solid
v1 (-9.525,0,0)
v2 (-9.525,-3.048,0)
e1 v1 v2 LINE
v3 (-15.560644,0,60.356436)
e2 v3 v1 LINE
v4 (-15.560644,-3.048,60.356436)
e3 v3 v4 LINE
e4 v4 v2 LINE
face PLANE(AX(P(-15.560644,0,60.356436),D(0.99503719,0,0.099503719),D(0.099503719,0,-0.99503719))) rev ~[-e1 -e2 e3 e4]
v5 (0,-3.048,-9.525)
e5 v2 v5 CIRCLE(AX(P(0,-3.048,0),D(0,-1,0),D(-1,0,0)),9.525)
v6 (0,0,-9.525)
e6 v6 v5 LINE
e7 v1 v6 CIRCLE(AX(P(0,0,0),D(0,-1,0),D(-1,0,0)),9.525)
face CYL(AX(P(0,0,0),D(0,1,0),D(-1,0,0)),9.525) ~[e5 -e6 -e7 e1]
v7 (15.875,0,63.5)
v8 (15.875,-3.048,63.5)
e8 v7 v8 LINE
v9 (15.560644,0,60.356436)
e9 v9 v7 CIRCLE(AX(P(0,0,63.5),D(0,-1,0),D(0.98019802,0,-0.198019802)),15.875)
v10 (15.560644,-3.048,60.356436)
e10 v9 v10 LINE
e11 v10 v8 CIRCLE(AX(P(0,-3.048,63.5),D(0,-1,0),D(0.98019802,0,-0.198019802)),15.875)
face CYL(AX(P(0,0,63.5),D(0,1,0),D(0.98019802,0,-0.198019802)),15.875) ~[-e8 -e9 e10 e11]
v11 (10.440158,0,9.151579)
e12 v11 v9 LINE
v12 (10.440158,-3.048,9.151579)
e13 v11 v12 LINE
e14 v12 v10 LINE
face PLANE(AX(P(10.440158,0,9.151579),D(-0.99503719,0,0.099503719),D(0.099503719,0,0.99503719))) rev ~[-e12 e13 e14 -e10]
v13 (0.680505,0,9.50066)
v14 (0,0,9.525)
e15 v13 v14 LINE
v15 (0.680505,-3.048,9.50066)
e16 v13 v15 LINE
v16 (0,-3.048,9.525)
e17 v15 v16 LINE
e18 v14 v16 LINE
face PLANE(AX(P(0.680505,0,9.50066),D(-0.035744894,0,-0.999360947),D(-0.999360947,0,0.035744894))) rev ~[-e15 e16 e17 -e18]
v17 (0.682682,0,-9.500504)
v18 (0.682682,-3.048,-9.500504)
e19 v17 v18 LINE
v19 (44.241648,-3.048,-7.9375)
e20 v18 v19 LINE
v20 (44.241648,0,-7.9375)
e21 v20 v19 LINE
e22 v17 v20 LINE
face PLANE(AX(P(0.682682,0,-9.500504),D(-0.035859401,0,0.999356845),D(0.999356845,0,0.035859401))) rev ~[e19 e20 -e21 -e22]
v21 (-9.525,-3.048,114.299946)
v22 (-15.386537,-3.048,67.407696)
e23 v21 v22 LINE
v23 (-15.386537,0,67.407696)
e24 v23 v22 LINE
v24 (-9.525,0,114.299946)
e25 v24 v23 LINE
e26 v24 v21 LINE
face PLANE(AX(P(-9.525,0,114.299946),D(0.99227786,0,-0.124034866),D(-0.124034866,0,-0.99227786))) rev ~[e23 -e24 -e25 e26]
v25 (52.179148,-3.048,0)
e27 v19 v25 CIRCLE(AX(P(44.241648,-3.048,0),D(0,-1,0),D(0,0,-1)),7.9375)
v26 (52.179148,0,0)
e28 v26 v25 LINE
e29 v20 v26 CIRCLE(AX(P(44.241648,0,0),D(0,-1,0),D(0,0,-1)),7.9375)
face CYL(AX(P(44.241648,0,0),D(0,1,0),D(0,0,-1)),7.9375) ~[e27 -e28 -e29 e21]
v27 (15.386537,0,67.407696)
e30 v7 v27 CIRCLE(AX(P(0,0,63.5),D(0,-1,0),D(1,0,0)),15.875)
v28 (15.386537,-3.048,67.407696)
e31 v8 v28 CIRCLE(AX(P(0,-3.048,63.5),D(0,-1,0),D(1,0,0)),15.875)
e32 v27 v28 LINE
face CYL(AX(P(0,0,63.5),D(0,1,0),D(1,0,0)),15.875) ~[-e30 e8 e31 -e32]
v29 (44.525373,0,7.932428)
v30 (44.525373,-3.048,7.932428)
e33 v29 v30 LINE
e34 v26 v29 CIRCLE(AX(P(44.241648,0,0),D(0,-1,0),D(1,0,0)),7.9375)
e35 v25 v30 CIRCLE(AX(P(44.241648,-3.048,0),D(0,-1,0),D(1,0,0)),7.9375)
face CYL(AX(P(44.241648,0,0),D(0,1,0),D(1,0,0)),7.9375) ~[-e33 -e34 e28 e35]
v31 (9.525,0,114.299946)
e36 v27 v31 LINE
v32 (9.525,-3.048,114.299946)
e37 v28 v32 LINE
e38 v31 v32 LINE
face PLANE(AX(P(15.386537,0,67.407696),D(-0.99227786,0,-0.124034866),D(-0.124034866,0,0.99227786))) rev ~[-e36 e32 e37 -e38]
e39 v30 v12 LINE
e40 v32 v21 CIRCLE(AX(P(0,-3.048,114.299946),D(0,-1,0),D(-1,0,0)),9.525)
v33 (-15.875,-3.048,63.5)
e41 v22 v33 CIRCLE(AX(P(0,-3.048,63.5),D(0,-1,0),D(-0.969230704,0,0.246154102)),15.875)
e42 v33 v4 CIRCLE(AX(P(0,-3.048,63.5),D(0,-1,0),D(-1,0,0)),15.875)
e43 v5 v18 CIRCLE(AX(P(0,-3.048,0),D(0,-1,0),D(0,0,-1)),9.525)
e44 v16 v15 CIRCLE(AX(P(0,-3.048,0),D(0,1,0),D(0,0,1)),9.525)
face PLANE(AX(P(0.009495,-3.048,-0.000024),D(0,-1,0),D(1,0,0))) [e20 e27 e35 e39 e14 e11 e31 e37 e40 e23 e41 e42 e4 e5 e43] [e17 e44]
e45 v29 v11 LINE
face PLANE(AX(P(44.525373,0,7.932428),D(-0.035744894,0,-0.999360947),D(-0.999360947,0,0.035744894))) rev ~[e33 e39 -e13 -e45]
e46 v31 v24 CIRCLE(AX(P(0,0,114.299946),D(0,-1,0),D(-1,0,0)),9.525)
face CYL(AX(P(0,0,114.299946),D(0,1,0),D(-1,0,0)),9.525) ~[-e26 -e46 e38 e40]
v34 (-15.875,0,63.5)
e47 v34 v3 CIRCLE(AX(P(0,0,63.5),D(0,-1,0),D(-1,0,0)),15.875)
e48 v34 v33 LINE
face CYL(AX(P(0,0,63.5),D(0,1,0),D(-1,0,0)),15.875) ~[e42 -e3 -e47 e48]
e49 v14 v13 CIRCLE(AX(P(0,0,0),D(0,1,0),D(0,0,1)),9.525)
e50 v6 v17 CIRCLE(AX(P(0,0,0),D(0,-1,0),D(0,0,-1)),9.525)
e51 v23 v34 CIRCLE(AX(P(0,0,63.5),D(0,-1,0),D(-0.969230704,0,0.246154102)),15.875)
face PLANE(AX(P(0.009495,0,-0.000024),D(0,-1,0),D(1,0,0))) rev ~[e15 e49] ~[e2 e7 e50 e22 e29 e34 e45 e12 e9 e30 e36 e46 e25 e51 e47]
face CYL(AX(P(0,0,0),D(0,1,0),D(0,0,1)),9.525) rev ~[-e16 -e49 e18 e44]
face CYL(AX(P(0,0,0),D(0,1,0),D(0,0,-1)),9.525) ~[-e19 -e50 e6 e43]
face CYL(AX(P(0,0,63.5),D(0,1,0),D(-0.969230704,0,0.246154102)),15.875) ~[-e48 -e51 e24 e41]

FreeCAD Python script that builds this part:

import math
import FreeCAD as App
import Part
import Sketcher
Q = App.Units.Quantity

doc = App.newDocument("Part")
body = doc.addObject("PartDesign::Body", "Body")

sketch1 = doc.addObject("Sketcher::SketchObject", "Sketch")
body.addObject(sketch1)
sketch1.AttachmentSupport = (doc.XZ_Plane, [""])
sketch1.MapMode = "FlatFace"
sketch1.addGeometry(Part.LineSegment(App.Vector(10.4, 9.2, 0), App.Vector(15.6, 60.4, 0)), False)
sketch1.addGeometry(Part.ArcOfCircle(Part.Circle(App.Vector(0, 63.5, 0), App.Vector(0, 0, 1), 15.9), math.radians(-11.42), math.radians(0)), False)
sketch1.addGeometry(Part.ArcOfCircle(Part.Circle(App.Vector(0, 63.5, 0), App.Vector(0, 0, 1), 15.9), math.radians(0), math.radians(14.25)), False)
sketch1.addGeometry(Part.LineSegment(App.Vector(15.4, 67.4, 0), App.Vector(9.5, 114.3, 0)), False)
sketch1.addGeometry(Part.ArcOfCircle(Part.Circle(App.Vector(0, 114.3, 0), App.Vector(0, 0, 1), 9.5), math.radians(0), math.radians(180)), False)
sketch1.addGeometry(Part.LineSegment(App.Vector(-9.5, 114.3, 0), App.Vector(-15.4, 67.4, 0)), False)
sketch1.addGeometry(Part.ArcOfCircle(Part.Circle(App.Vector(0, 63.5, 0), App.Vector(0, 0, 1), 15.9), math.radians(165.75), math.radians(180)), False)
sketch1.addGeometry(Part.ArcOfCircle(Part.Circle(App.Vector(0, 63.5, 0), App.Vector(0, 0, 1), 15.9), math.radians(180), math.radians(191.42)), False)
sketch1.addGeometry(Part.LineSegment(App.Vector(-15.6, 60.4, 0), App.Vector(-9.5, 0, 0)), False)
sketch1.addGeometry(Part.ArcOfCircle(Part.Circle(App.Vector(0, 0, 0), App.Vector(0, 0, 1), 9.5), math.radians(180), math.radians(270)), False)
sketch1.addGeometry(Part.ArcOfCircle(Part.Circle(App.Vector(0, 0, 0), App.Vector(0, 0, 1), 9.5), math.radians(-90), math.radians(-85.89)), False)
sketch1.addGeometry(Part.LineSegment(App.Vector(0.7, -9.5, 0), App.Vector(44.2, -7.9, 0)), False)
sketch1.addGeometry(Part.ArcOfCircle(Part.Circle(App.Vector(44.2, 0, 0), App.Vector(0, 0, 1), 7.9), math.radians(-90), math.radians(0)), False)
sketch1.addGeometry(Part.ArcOfCircle(Part.Circle(App.Vector(44.2, 0, 0), App.Vector(0, 0, 1), 7.9), math.radians(0), math.radians(88)), False)
sketch1.addGeometry(Part.LineSegment(App.Vector(44.5, 7.9, 0), App.Vector(10.4, 9.2, 0)), False)
sketch1.addGeometry(Part.ArcOfCircle(Part.Circle(App.Vector(0, 0, 0), App.Vector(0, 0, 1), 9.5), math.radians(85.9), math.radians(90)), False)
sketch1.addGeometry(Part.LineSegment(App.Vector(0.7, 9.5, 0), App.Vector(0, 9.5, 0)), False)
sketch1.addConstraint(Sketcher.Constraint("Coincident", 0, 2, 1, 1))
sketch1.addConstraint(Sketcher.Constraint("Tangent", 1, 2, 2, 1))
sketch1.addConstraint(Sketcher.Constraint("Coincident", 2, 2, 3, 1))
sketch1.addConstraint(Sketcher.Constraint("Coincident", 3, 2, 4, 1))
sketch1.addConstraint(Sketcher.Constraint("Coincident", 4, 2, 5, 1))
sketch1.addConstraint(Sketcher.Constraint("Coincident", 5, 2, 6, 1))
sketch1.addConstraint(Sketcher.Constraint("Tangent", 6, 2, 7, 1))
sketch1.addConstraint(Sketcher.Constraint("Coincident", 7, 2, 8, 1))
sketch1.addConstraint(Sketcher.Constraint("Coincident", 8, 2, 9, 1))
sketch1.addConstraint(Sketcher.Constraint("Tangent", 9, 2, 10, 1))
sketch1.addConstraint(Sketcher.Constraint("Coincident", 10, 2, 11, 1))
sketch1.addConstraint(Sketcher.Constraint("Coincident", 11, 2, 12, 1))
sketch1.addConstraint(Sketcher.Constraint("Tangent", 12, 2, 13, 1))
sketch1.addConstraint(Sketcher.Constraint("Tangent", 13, 2, 14, 1))
sketch1.addConstraint(Sketcher.Constraint("Coincident", 14, 2, 0, 1))
sketch1.addConstraint(Sketcher.Constraint("Coincident", 15, 1, 16, 1))
sketch1.addConstraint(Sketcher.Constraint("Coincident", 16, 2, 15, 2))
sketch1.addConstraint(Sketcher.Constraint("Coincident", 9, 3, -1, 1))
sketch1.addConstraint(Sketcher.Constraint("Coincident", 15, 3, -1, 1))
sketch1.addConstraint(Sketcher.Constraint("Coincident", 6, 3, 1, 3))
sketch1.addConstraint(Sketcher.Constraint("Equal", 1, 2))
sketch1.addConstraint(Sketcher.Constraint("Equal", 2, 6))
sketch1.addConstraint(Sketcher.Constraint("Equal", 6, 7))
sketch1.addConstraint(Sketcher.Constraint("Equal", 4, 9))
sketch1.addConstraint(Sketcher.Constraint("Equal", 9, 10))
sketch1.addConstraint(Sketcher.Constraint("Equal", 12, 13))
sketch1.addConstraint(Sketcher.Constraint("Equal", 10, 15))
sketch1.addConstraint(Sketcher.Constraint("Symmetric", 3, 2, 4, 2, -2))
sketch1.addConstraint(Sketcher.Constraint("Symmetric", 2, 2, 5, 2, -2))
sketch1.addConstraint(Sketcher.Constraint("PointOnObject", 12, 3, -1))
sketch1.addConstraint(Sketcher.Constraint("PointOnObject", 8, 2, -1))
sketch1.addConstraint(Sketcher.Constraint("PointOnObject", 9, 2, -2))
sketch1.addConstraint(Sketcher.Constraint("PointOnObject", 12, 2, -1))
sketch1.addConstraint(Sketcher.Constraint("PointOnObject", 16, 2, -2))
sketch1.addConstraint(Sketcher.Constraint("Parallel", 14, 16))
sketch1.addConstraint(Sketcher.Constraint("Horizontal", 7, 3, 1, 2))
sketch1.addConstraint(Sketcher.Constraint("Horizontal", 4, 3, 3, 2))
sketch1.addConstraint(Sketcher.Constraint("Horizontal", 1, 2, 6, 2))
sketch1.addConstraint(Sketcher.Constraint("Horizontal", 0, 2, 7, 2))
sketch1.addConstraint(Sketcher.Constraint("Vertical", 13, 3, 11, 2))
sketch1.addConstraint(Sketcher.Constraint("Radius", 1, Q("0.625 in")))
sketch1.addConstraint(Sketcher.Constraint("Radius", 4, Q("0.375 in")))
sketch1.addConstraint(Sketcher.Constraint("Radius", 12, Q("0.3125 in")))
sketch1.addConstraint(Sketcher.Constraint("DistanceY", -1, 1, 1, 3, Q("2.5 in")))
sketch1.addConstraint(Sketcher.Constraint("Distance", 11, 43.586999))
sketch1.addConstraint(Sketcher.Constraint("Distance", 14, 34.107012))
sketch1.addConstraint(Sketcher.Constraint("Distance", 16, 0.68094))
sketch1.addConstraint(Sketcher.Constraint("DistanceX", -1, 1, 12, 3, 44.241648))
sketch1.addConstraint(Sketcher.Constraint("DistanceY", 0, 2, 4, 3, 53.94351))
sketch1.addConstraint(Sketcher.Constraint("DistanceY", 0, 2, 2, 2, 7.051261))
sketch1.addConstraint(Sketcher.Constraint("Distance", 0, 51.460244))
pad1 = doc.addObject("PartDesign::Pad", "Pad")
body.addObject(pad1)
pad1.Profile = sketch1
pad1.Length = Q("0.12 in")

doc.recompute()
